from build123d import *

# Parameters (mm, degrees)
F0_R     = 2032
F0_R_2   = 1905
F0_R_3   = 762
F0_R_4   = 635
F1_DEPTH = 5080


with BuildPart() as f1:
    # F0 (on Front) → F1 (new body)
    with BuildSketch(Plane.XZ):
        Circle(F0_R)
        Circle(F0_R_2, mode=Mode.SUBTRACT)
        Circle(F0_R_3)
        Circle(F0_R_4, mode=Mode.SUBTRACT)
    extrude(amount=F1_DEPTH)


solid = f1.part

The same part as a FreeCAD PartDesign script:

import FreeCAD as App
import Part
import Sketcher

V = App.Vector
Q = App.Units.Quantity

doc = App.newDocument("Part")
body = doc.addObject("PartDesign::Body", "Body")
body.AllowCompound = True

sketch1 = body.newObject("Sketcher::SketchObject", "Sketch")
sketch1.AttachmentSupport = (doc.getObject("XZ_Plane"), [""])
sketch1.MapMode = "FlatFace"
sketch1.addGeometry([
    Part.Circle(V(0, 0, 0), V(0, 0, 1), 2032),
    Part.Circle(V(0, 0, 0), V(0, 0, 1), 1905),
    Part.Circle(V(0, 0, 0), V(0, 0, 1), 762),
    Part.Circle(V(0, 0, 0), V(0, 0, 1), 635),
], False)
sketch1.addConstraint([
    Sketcher.Constraint("Coincident", 0, 3, -1, 1),
    Sketcher.Constraint("Coincident", 1, 3, -1, 1),
    Sketcher.Constraint("Coincident", 2, 3, -1, 1),
    Sketcher.Constraint("Coincident", 3, 3, -1, 1),
    Sketcher.Constraint("Diameter", 0, Q("160 in")),
    Sketcher.Constraint("Diameter", 1, Q("150 in")),
    Sketcher.Constraint("Diameter", 2, Q("60 in")),
    Sketcher.Constraint("Diameter", 3, Q("50 in")),
])
pad1 = body.newObject("PartDesign::Pad", "Pad")
pad1.Profile = sketch1
pad1.Length = Q("200 in")

doc.recompute()
